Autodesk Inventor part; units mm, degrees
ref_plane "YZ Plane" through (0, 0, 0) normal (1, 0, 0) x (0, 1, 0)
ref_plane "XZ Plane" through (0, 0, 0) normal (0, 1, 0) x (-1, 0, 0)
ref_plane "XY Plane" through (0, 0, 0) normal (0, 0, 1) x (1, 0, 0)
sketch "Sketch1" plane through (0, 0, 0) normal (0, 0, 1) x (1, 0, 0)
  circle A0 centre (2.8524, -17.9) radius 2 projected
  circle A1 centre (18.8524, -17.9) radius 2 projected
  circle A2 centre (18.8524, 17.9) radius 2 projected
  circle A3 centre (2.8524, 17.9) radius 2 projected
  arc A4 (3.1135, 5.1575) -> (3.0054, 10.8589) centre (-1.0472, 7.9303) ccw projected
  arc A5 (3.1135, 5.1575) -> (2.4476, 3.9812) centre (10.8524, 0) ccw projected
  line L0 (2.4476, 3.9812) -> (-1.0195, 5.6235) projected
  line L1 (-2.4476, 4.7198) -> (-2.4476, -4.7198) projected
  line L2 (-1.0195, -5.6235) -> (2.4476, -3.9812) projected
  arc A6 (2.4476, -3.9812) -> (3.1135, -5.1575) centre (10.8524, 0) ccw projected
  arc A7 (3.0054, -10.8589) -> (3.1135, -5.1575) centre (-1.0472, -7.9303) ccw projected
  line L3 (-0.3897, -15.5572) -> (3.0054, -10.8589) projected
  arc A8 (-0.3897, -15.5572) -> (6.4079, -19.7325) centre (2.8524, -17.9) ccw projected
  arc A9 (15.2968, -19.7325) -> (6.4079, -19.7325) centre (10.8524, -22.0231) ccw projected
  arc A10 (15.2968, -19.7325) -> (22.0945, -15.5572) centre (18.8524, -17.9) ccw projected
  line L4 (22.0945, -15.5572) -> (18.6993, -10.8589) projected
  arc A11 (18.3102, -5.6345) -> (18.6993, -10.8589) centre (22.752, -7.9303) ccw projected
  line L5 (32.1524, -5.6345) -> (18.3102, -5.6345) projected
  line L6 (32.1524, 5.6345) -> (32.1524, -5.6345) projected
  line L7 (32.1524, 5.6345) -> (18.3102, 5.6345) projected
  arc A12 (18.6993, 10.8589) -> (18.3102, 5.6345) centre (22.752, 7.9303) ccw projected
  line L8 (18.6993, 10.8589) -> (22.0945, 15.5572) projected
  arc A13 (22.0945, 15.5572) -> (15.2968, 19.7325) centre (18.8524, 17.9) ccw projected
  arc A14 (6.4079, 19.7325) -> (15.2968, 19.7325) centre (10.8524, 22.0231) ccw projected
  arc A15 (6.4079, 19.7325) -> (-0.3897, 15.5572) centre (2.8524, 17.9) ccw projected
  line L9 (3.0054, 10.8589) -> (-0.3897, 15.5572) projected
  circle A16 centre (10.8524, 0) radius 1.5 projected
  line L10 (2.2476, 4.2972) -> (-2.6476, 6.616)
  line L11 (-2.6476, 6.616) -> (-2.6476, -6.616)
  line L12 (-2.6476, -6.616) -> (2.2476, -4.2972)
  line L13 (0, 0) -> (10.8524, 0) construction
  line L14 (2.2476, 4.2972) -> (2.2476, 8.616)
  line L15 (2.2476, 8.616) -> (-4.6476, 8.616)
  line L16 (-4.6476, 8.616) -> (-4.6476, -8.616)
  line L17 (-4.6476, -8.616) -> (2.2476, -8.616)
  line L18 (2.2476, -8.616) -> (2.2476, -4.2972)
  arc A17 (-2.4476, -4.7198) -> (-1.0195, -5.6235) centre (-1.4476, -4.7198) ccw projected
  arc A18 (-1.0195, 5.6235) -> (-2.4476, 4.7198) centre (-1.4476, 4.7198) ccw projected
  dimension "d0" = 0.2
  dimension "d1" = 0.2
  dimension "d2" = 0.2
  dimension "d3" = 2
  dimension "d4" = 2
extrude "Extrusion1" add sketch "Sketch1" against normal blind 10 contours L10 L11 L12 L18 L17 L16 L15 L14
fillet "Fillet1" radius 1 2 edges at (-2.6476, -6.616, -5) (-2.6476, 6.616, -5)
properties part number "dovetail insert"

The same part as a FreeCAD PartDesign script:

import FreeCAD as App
import Part
import Sketcher
from FreeCAD import Vector
Q = App.Units.Quantity


def edges_at(feature, points):
    """Names of the edges that pass closest to the given points."""
    edges = feature.Shape.Edges
    near = lambda p: min(range(len(edges)), key=lambda i: edges[i].distToShape(Part.Vertex(*p))[0])
    return sorted({f"Edge{near(p) + 1}" for p in points})


def add_polygon(sketch, points):
    """Adds a closed chain of lines whose ends are joined by coincident constraints."""
    first, n = sketch.GeometryCount, len(points)
    for a, b in zip(points, points[1:] + points[:1]):
        sketch.addGeometry(Part.LineSegment(App.Vector(*a, 0), App.Vector(*b, 0)), False)
    for i in range(n):
        sketch.addConstraint(Sketcher.Constraint("Coincident", first + i, 2, first + (i + 1) % n, 1))

doc = App.newDocument("Part")
params = doc.addObject("Spreadsheet::Sheet", "Params")
for row, (alias, value) in enumerate([
    ("pad1_length", "10 mm"),
    ("fillet_radius", "1 mm"),
], start=1):
    params.set(f"A{row}", alias)
    params.set(f"B{row}", "=" + value)
    params.setAlias(f"B{row}", alias)

body = doc.addObject("PartDesign::Body", "Body")

# Sketch on XY plane
sketch1 = doc.addObject("Sketcher::SketchObject", "Sketch")
body.addObject(sketch1)
sketch1.AttachmentSupport = (doc.XY_Plane, [""])
sketch1.MapMode = "FlatFace"
add_polygon(sketch1, [(-2.6, 6.6), (2.2, 4.3), (2.2, 8.6), (-4.6, 8.6), (-4.6, -8.6), (2.2, -8.6), (2.2, -4.3), (-2.6, -6.6)])  # lines 0-7
sketch1.addConstraint([
    Sketcher.Constraint("Vertical", 1),
    Sketcher.Constraint("Horizontal", 2),
    Sketcher.Constraint("Vertical", 3),
    Sketcher.Constraint("Horizontal", 4),
    Sketcher.Constraint("Vertical", 5),
    Sketcher.Constraint("Vertical", 7),
    Sketcher.Constraint("Symmetric", 1, 2, 4, 2, -1),
    Sketcher.Constraint("Equal", 1, 5),
    Sketcher.Constraint("Equal", 0, 6),
    Sketcher.Constraint("DistanceX", 3, 2, 6, 2, Q("2 mm")),
    Sketcher.Constraint("DistanceY", 3, 2, 6, 2, Q("2 mm")),
    Sketcher.Constraint("DistanceY", 3, 2, 3, 1, Q("17.232 mm")),
    Sketcher.Constraint("DistanceX", 2, 2, 2, 1, Q("6.8952 mm")),
    Sketcher.Constraint("DistanceY", 1, 1, 1, 2, Q("4.3188 mm")),
    Sketcher.Constraint("DistanceX", -1, 1, 0, 2, Q("2.2476 mm")),
])
pad1 = doc.addObject("PartDesign::Pad", "Pad")
body.addObject(pad1)
pad1.Profile = sketch1
pad1.setExpression("Length", "Params.pad1_length")
pad1.Reversed = True
doc.recompute()

fillet = doc.addObject("PartDesign::Fillet", "Fillet")
body.addObject(fillet)
fillet.Base = (pad1, edges_at(pad1, [(-2.648, -6.616, -5), (-2.648, 6.616, -5)]))
fillet.setExpression("Radius", "Params.fillet_radius")

doc.recompute()
